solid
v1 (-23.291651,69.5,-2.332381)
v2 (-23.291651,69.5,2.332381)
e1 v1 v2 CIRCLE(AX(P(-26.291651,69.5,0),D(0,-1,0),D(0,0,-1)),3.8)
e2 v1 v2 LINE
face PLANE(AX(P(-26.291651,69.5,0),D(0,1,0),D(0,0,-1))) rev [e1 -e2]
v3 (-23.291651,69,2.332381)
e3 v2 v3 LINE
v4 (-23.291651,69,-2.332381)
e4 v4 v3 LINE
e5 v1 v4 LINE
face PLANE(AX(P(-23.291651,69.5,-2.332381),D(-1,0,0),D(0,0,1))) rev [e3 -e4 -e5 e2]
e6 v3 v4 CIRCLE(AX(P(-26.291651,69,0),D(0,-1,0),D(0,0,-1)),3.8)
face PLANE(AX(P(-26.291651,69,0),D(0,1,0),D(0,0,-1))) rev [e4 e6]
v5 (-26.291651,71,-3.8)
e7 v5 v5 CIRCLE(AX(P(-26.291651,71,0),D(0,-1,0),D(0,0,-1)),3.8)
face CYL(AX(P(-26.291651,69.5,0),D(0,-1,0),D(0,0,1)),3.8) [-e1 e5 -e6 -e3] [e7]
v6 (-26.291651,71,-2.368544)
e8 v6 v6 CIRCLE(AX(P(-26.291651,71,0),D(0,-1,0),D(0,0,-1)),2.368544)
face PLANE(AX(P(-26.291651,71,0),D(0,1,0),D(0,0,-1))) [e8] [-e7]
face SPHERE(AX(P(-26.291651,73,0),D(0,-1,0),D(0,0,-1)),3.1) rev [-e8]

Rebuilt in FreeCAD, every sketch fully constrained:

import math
import FreeCAD as App
import Part
import Sketcher

V = App.Vector

doc = App.newDocument("Part")
body = doc.addObject("PartDesign::Body", "Body")

sketch1 = body.newObject("Sketcher::SketchObject", "Sketch")
sketch1.AttachmentSupport = (doc.getObject("XZ_Plane"), [""])
sketch1.MapMode = "FlatFace"
sketch1.AttachmentOffset = App.Placement(V(0, 0, 69), App.Rotation())
sketch1.addGeometry([
    Part.LineSegment(V(-23.3, -2.3, 0), V(-23.3, 2.3, 0)),
    Part.ArcOfCircle(Part.Circle(V(-26.3, 0, 0), V(0, 0, 1), 3.8), math.radians(38), math.radians(322)),
], False)
sketch1.addConstraint([
    Sketcher.Constraint("Coincident", 0, 1, 1, 2),
    Sketcher.Constraint("Coincident", 1, 1, 0, 2),
    Sketcher.Constraint("Vertical", 0),
    Sketcher.Constraint("PointOnObject", 1, 3, -1),
    Sketcher.Constraint("Radius", 1, 3.8),
    Sketcher.Constraint("DistanceX", 1, 3, 0, 1, 3.0),
    Sketcher.Constraint("DistanceX", 1, 3, -1, 1, 26.291651),
])
pad1 = body.newObject("PartDesign::Pad", "Pad")
pad1.Profile = sketch1
pad1.Length = 0.5

sketch2 = body.newObject("Sketcher::SketchObject", "Sketch001")
sketch2.AttachmentSupport = (doc.getObject("XZ_Plane"), [""])
sketch2.MapMode = "FlatFace"
sketch2.AttachmentOffset = App.Placement(V(0, 0, 69.5), App.Rotation())
sketch2.addGeometry(Part.Circle(V(-26.3, 0, 0), V(0, 0, 1), 3.8), False)
sketch2.addConstraint([
    Sketcher.Constraint("PointOnObject", 0, 3, -1),
    Sketcher.Constraint("Diameter", 0, 7.6),
    Sketcher.Constraint("DistanceX", 0, 3, -1, 1, 26.291651),
])
pad2 = body.newObject("PartDesign::Pad", "Pad001")
pad2.Profile = sketch2
pad2.Length = 1.5

sketch3 = body.newObject("Sketcher::SketchObject", "Sketch002")
sketch3.AttachmentSupport = (doc.getObject("XZ_Plane"), [""])
sketch3.MapMode = "FlatFace"
sketch3.AttachmentOffset = App.Placement(V(0, 0, 73), App.Rotation())
sketch3.addGeometry([
    Part.LineSegment(V(-26.3, 3.1, 0), V(-26.3, -3.1, 0)),
    Part.ArcOfCircle(Part.Circle(V(-26.3, 0, 0), V(0, 0, 1), 3.1), math.radians(-90), math.radians(90)),
], False)
sketch3.addGeometry(Part.LineSegment(V(-26.3, -3.1, 0), V(-26.3, 3.1, 0)), True)
sketch3.addConstraint([
    Sketcher.Constraint("Coincident", 0, 1, 1, 2),
    Sketcher.Constraint("Coincident", 1, 1, 0, 2),
    Sketcher.Constraint("Vertical", 0),
    Sketcher.Constraint("Vertical", 2),
    Sketcher.Constraint("Coincident", 2, 1, 1, 1),
    Sketcher.Constraint("PointOnObject", 1, 3, -1),
    Sketcher.Constraint("Vertical", 1, 3, 0, 1),
    Sketcher.Constraint("Equal", 0, 2),
    Sketcher.Constraint("Radius", 1, 3.1),
    Sketcher.Constraint("DistanceX", 1, 3, -1, 1, 26.291651),
])
groove = body.newObject("PartDesign::Groove", "Groove")
groove.Profile = sketch3
groove.ReferenceAxis = (sketch3, ["Axis0"])
groove.Angle = 360
body2 = doc.addObject("PartDesign::Body", "Body001")
doc.recompute()

mirroring = doc.addObject("Part::Mirroring", "Mirroring")
mirroring.Source = body
mirroring.Base = V(0, 0, 0)
mirroring.Normal = V(0, -1, 0)
body2.BaseFeature = mirroring
doc.recompute()
body.Visibility = False
mirroring.Visibility = False

doc.recompute()
